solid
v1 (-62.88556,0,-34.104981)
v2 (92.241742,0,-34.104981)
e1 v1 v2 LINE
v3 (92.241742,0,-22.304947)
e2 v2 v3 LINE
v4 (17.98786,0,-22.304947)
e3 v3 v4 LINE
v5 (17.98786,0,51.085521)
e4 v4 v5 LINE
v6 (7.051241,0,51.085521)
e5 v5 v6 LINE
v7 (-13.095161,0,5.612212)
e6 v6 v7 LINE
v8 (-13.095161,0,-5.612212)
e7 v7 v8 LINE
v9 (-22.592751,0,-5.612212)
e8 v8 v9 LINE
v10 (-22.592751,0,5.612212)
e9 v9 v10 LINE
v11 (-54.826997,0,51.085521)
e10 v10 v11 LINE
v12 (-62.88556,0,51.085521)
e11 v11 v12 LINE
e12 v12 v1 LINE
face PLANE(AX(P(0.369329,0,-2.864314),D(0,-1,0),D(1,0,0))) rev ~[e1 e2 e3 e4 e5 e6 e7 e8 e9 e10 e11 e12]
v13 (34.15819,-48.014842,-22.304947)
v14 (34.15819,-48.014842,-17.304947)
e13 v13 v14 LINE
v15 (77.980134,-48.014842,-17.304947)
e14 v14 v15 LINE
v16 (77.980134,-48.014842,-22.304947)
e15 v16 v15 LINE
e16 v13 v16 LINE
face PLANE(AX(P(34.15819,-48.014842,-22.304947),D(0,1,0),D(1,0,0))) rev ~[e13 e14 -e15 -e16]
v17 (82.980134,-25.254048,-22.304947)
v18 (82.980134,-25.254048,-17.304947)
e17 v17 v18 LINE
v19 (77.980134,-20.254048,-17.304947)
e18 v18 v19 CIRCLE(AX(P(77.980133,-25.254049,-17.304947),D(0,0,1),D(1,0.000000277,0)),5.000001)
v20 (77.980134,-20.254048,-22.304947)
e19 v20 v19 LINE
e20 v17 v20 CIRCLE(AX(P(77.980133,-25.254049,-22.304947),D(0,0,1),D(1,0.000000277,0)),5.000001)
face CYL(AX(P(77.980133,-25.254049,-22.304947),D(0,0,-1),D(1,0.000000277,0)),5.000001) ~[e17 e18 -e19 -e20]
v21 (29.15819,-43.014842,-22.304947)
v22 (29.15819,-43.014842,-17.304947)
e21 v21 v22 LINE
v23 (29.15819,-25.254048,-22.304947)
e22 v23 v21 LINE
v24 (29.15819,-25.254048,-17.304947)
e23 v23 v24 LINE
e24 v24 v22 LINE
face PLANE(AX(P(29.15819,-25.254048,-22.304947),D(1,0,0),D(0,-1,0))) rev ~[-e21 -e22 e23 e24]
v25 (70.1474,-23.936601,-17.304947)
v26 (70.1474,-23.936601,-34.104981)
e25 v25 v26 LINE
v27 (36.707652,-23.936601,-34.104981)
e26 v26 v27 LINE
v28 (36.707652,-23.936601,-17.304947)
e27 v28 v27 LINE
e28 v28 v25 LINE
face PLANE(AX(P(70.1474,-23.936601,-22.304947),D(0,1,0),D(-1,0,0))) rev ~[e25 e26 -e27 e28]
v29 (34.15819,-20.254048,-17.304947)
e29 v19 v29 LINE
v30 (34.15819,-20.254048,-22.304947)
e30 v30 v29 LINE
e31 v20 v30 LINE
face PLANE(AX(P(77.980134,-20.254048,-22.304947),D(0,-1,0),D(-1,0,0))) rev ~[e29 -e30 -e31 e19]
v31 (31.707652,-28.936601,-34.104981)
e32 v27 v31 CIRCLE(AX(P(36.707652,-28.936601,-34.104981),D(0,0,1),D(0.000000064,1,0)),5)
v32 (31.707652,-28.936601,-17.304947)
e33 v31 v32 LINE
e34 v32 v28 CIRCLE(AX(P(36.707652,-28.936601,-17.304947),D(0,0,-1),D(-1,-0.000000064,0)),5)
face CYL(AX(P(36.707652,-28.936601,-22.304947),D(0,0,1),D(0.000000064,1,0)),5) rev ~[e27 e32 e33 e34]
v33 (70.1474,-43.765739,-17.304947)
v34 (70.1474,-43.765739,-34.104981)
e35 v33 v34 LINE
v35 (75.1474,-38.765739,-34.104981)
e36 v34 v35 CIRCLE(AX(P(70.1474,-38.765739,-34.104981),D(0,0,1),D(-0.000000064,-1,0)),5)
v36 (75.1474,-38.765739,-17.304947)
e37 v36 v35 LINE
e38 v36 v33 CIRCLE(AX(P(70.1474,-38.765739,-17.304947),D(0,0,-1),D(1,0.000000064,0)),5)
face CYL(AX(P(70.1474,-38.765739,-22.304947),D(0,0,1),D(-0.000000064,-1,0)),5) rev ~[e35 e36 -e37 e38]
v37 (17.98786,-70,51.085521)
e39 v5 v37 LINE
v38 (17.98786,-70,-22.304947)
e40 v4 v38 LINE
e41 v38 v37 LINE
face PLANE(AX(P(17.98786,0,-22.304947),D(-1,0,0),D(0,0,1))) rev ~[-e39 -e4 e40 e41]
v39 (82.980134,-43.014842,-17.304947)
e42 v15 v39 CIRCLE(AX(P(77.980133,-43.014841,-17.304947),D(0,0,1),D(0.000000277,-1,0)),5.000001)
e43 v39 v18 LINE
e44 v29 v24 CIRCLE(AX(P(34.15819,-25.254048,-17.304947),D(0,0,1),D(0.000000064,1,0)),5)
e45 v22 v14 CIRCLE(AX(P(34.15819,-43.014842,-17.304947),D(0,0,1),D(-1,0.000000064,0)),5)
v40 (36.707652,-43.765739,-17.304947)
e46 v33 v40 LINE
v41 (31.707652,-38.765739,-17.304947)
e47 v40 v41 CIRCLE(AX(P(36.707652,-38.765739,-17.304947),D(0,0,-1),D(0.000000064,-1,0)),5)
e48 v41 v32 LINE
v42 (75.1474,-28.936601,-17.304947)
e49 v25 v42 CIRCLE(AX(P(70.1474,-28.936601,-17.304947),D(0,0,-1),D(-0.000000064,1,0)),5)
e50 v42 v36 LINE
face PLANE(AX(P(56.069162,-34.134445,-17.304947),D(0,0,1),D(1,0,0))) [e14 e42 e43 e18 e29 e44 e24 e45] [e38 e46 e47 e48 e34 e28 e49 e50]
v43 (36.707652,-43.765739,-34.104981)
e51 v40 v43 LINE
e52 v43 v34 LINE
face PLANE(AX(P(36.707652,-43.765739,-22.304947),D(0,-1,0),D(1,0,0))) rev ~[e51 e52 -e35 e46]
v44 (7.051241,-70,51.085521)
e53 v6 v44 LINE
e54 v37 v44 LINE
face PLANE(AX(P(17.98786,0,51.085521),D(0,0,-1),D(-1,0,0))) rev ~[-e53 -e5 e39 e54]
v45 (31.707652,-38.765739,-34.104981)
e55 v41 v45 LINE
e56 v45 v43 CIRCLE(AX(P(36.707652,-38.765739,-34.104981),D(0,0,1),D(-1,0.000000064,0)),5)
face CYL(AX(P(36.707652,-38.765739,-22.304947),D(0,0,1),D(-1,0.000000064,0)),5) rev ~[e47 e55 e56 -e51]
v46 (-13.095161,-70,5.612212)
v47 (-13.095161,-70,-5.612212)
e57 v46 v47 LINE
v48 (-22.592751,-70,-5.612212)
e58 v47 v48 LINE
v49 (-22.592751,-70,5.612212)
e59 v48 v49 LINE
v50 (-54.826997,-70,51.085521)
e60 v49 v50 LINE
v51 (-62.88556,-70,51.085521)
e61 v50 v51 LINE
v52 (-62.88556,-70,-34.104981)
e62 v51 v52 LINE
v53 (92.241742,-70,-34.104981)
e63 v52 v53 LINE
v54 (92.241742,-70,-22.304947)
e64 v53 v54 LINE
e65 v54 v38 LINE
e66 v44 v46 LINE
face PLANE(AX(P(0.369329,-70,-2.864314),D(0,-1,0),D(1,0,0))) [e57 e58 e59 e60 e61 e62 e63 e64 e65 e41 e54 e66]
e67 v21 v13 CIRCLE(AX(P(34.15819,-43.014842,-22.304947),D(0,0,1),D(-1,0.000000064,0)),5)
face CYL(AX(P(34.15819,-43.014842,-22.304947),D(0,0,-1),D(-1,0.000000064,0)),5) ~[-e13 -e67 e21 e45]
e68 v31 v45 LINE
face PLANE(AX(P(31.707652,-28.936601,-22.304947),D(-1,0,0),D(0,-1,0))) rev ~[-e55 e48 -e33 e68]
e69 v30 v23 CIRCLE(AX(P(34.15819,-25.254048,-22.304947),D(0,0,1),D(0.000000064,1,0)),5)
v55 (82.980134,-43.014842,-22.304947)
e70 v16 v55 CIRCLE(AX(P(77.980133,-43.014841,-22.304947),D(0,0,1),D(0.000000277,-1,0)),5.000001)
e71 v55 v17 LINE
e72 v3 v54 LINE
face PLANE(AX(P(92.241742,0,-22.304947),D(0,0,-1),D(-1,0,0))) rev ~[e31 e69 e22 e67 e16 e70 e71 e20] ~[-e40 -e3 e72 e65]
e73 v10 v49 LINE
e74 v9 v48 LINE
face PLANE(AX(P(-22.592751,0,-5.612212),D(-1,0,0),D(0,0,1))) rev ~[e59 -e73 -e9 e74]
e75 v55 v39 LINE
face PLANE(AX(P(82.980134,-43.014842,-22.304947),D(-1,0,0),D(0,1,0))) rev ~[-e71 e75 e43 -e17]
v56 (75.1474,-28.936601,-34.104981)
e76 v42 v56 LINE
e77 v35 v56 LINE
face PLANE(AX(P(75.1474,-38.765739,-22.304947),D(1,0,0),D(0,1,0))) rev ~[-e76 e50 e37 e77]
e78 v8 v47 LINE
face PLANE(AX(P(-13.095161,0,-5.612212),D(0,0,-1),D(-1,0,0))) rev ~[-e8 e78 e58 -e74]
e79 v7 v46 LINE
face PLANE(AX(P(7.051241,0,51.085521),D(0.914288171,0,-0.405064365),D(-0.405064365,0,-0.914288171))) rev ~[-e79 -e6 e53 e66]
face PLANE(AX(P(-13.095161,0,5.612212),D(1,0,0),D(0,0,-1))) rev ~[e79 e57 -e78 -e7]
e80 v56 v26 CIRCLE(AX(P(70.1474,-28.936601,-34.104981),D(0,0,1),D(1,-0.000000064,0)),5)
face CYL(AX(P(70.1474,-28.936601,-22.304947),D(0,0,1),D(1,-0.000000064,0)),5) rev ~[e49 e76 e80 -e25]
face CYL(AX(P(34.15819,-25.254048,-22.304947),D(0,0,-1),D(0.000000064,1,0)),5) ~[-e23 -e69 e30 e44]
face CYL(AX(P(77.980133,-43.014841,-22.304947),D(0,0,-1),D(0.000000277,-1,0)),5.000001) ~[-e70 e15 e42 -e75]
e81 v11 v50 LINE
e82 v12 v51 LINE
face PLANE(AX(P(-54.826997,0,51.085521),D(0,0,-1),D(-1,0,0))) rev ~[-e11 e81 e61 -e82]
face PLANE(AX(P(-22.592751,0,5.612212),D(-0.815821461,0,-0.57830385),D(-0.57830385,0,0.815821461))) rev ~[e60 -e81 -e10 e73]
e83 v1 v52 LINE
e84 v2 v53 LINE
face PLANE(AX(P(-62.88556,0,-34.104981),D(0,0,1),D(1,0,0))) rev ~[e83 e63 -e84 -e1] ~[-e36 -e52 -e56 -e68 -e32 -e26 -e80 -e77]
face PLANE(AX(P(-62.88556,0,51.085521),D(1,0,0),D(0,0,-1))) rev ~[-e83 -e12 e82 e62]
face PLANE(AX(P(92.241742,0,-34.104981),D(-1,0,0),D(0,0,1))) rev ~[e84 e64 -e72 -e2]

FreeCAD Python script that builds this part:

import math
import FreeCAD as App
import Part
import Sketcher
from FreeCAD import Vector
Q = App.Units.Quantity

doc = App.newDocument("Part")
params = doc.addObject("Spreadsheet::Sheet", "Params")
for row, (alias, value) in enumerate([
    ("pad1_length", "70 mm"),
    ("sketch2_radius", "5 mm"),
    ("pad2_length", "5 mm"),
    ("sketch3_radius", "5 mm"),
    ("pocket1_length", "25 mm"),
], start=1):
    params.set(f"A{row}", alias)
    params.set(f"B{row}", "=" + value)
    params.setAlias(f"B{row}", alias)

body = doc.addObject("PartDesign::Body", "Body")

sketch1 = body.newObject("Sketcher::SketchObject", "Sketch")
sketch1.AttachmentSupport = (doc.getObject("XZ_Plane"), [""])
sketch1.MapMode = "FlatFace"
sketch1.addGeometry([
    Part.LineSegment(Vector(-55, 51, 0), Vector(-63, 51, 0)),
    Part.LineSegment(Vector(-63, 51, 0), Vector(-63, -34, 0)),
    Part.LineSegment(Vector(-63, -34, 0), Vector(92, -34, 0)),
    Part.LineSegment(Vector(92, -34, 0), Vector(92, -22, 0)),
    Part.LineSegment(Vector(92, -22, 0), Vector(18, -22, 0)),
    Part.LineSegment(Vector(18, -22, 0), Vector(18, 51, 0)),
    Part.LineSegment(Vector(18, 51, 0), Vector(7, 51, 0)),
    Part.LineSegment(Vector(7, 51, 0), Vector(-13, 6, 0)),
    Part.LineSegment(Vector(-13, 6, 0), Vector(-13, -6, 0)),
    Part.LineSegment(Vector(-13, -6, 0), Vector(-23, -6, 0)),
    Part.LineSegment(Vector(-23, -6, 0), Vector(-23, 6, 0)),
    Part.LineSegment(Vector(-23, 6, 0), Vector(-55, 51, 0)),
], False)
sketch1.addConstraint([
    Sketcher.Constraint("Coincident", 0, 2, 1, 1),
    Sketcher.Constraint("Coincident", 1, 2, 2, 1),
    Sketcher.Constraint("Coincident", 2, 2, 3, 1),
    Sketcher.Constraint("Coincident", 3, 2, 4, 1),
    Sketcher.Constraint("Coincident", 4, 2, 5, 1),
    Sketcher.Constraint("Coincident", 5, 2, 6, 1),
    Sketcher.Constraint("Coincident", 6, 2, 7, 1),
    Sketcher.Constraint("Coincident", 7, 2, 8, 1),
    Sketcher.Constraint("Coincident", 8, 2, 9, 1),
    Sketcher.Constraint("Coincident", 9, 2, 10, 1),
    Sketcher.Constraint("Coincident", 10, 2, 11, 1),
    Sketcher.Constraint("Coincident", 11, 2, 0, 1),
    Sketcher.Constraint("Horizontal", 0),
    Sketcher.Constraint("Vertical", 1),
    Sketcher.Constraint("Horizontal", 2),
    Sketcher.Constraint("Vertical", 3),
    Sketcher.Constraint("Horizontal", 4),
    Sketcher.Constraint("Vertical", 5),
    Sketcher.Constraint("Horizontal", 6),
    Sketcher.Constraint("Vertical", 8),
    Sketcher.Constraint("Horizontal", 9),
    Sketcher.Constraint("Vertical", 10),
    Sketcher.Constraint("Horizontal", 0, 2, 5, 2),
    Sketcher.Constraint("Horizontal", 7, 2, 10, 2),
    Sketcher.Constraint("DistanceX", 2, 1, 2, 2, Q("155.127302 mm")),
    Sketcher.Constraint("Distance", 7, Q("49.736298 mm")),
    Sketcher.Constraint("DistanceX", 6, 2, 6, 1, Q("10.936619 mm")),
    Sketcher.Constraint("DistanceX", 9, 2, 9, 1, Q("9.49759 mm")),
    Sketcher.Constraint("DistanceY", 5, 1, 5, 2, Q("73.390468 mm")),
    Sketcher.Constraint("DistanceX", 0, 2, 6, 2, Q("69.936801 mm")),
    Sketcher.Constraint("DistanceX", 7, 2, 6, 2, Q("20.146402 mm")),
    Sketcher.Constraint("Distance", 11, Q("55.73929 mm")),
    Sketcher.Constraint("DistanceY", 1, 2, 1, 1, Q("85.190502 mm")),
    Sketcher.Constraint("DistanceY", 8, 2, 8, 1, Q("11.224424 mm")),
    Sketcher.Constraint("DistanceX", 0, 2, -1, 1, Q("62.88556 mm")),
    Sketcher.Constraint("DistanceY", -1, 1, 0, 2, Q("51.085521 mm")),
])
pad1 = body.newObject("PartDesign::Pad", "Pad")
pad1.Profile = sketch1
pad1.setExpression("Length", "Params.pad1_length")

sketch2 = body.newObject("Sketcher::SketchObject", "Sketch001")
sketch2.AttachmentSupport = (doc.getObject("XY_Plane"), [""])
sketch2.MapMode = "FlatFace"
sketch2.AttachmentOffset = App.Placement(Vector(0, 0, -22.304947), App.Rotation())
sketch2.addGeometry([
    Part.LineSegment(Vector(78, -20.3, 0), Vector(34.2, -20.3, 0)),
    Part.ArcOfCircle(Part.Circle(Vector(34.2, -25.3, 0), Vector(0, 0, 1), 5), math.radians(90), math.radians(180)),
    Part.LineSegment(Vector(29.2, -25.3, 0), Vector(29.2, -43, 0)),
    Part.ArcOfCircle(Part.Circle(Vector(34.2, -43, 0), Vector(0, 0, 1), 5), math.radians(180), math.radians(270)),
    Part.LineSegment(Vector(34.2, -48, 0), Vector(78, -48, 0)),
    Part.ArcOfCircle(Part.Circle(Vector(78, -43, 0), Vector(0, 0, 1), 5), math.radians(-90), math.radians(0)),
    Part.LineSegment(Vector(83, -43, 0), Vector(83, -25.3, 0)),
    Part.ArcOfCircle(Part.Circle(Vector(78, -25.3, 0), Vector(0, 0, 1), 5), math.radians(0), math.radians(90)),
    Part.LineSegment(Vector(31.7, -38.8, 0), Vector(31.7, -28.9, 0)),
    Part.ArcOfCircle(Part.Circle(Vector(36.7, -28.9, 0), Vector(0, 0, 1), 5), math.radians(90), math.radians(180)),
    Part.LineSegment(Vector(36.7, -23.9, 0), Vector(70.1, -23.9, 0)),
    Part.ArcOfCircle(Part.Circle(Vector(70.1, -28.9, 0), Vector(0, 0, 1), 5), math.radians(0), math.radians(90)),
    Part.LineSegment(Vector(75.1, -28.9, 0), Vector(75.1, -38.8, 0)),
    Part.ArcOfCircle(Part.Circle(Vector(70.1, -38.8, 0), Vector(0, 0, 1), 5), math.radians(-90), math.radians(0)),
    Part.LineSegment(Vector(70.1, -43.8, 0), Vector(36.7, -43.8, 0)),
    Part.ArcOfCircle(Part.Circle(Vector(36.7, -38.8, 0), Vector(0, 0, 1), 5), math.radians(180), math.radians(270)),
], False)
sketch2.addConstraint([
    Sketcher.Constraint("Tangent", 0, 2, 1, 1),
    Sketcher.Constraint("Tangent", 1, 2, 2, 1),
    Sketcher.Constraint("Tangent", 2, 2, 3, 1),
    Sketcher.Constraint("Tangent", 3, 2, 4, 1),
    Sketcher.Constraint("Tangent", 4, 2, 5, 1),
    Sketcher.Constraint("Tangent", 5, 2, 6, 1),
    Sketcher.Constraint("Tangent", 6, 2, 7, 1),
    Sketcher.Constraint("Tangent", 7, 2, 0, 1),
    Sketcher.Constraint("Tangent", 8, 2, 9, 2),
    Sketcher.Constraint("Tangent", 9, 1, 10, 1),
    Sketcher.Constraint("Tangent", 10, 2, 11, 2),
    Sketcher.Constraint("Tangent", 11, 1, 12, 1),
    Sketcher.Constraint("Tangent", 12, 2, 13, 2),
    Sketcher.Constraint("Tangent", 13, 1, 14, 1),
    Sketcher.Constraint("Tangent", 14, 2, 15, 2),
    Sketcher.Constraint("Tangent", 15, 1, 8, 1),
    Sketcher.Constraint("Horizontal", 0),
    Sketcher.Constraint("Vertical", 2),
    Sketcher.Constraint("Horizontal", 4),
    Sketcher.Constraint("Vertical", 6),
    Sketcher.Constraint("Vertical", 8),
    Sketcher.Constraint("Horizontal", 10),
    Sketcher.Constraint("Vertical", 12),
    Sketcher.Constraint("Horizontal", 14),
    Sketcher.Constraint("Equal", 1, 3),
    Sketcher.Constraint("Equal", 3, 5),
    Sketcher.Constraint("Equal", 5, 7),
    Sketcher.Constraint("Equal", 7, 9),
    Sketcher.Constraint("Equal", 9, 11),
    Sketcher.Constraint("Equal", 11, 13),
    Sketcher.Constraint("Equal", 13, 15),
    Sketcher.Constraint("Radius", 1, Q("5 mm")),
    Sketcher.Constraint("DistanceX", 10, 1, 10, 2, Q("33.439748 mm")),
    Sketcher.Constraint("DistanceY", 8, 1, 8, 2, Q("9.829138 mm")),
    Sketcher.Constraint("DistanceY", 9, 3, -1, 1, Q("28.936601 mm")),
    Sketcher.Constraint("DistanceX", -1, 1, 11, 3, Q("70.1474 mm")),
    Sketcher.Constraint("DistanceY", 5, 3, 13, 3, Q("4.249101 mm")),
    Sketcher.Constraint("DistanceX", 0, 2, 0, 1, Q("43.821944 mm")),
    Sketcher.Constraint("DistanceY", 2, 2, 2, 1, Q("17.760794 mm")),
    Sketcher.Constraint("DistanceX", -1, 1, 1, 3, Q("34.15819 mm")),
])
sketch2.setExpression("Constraints[31]", "Params.sketch2_radius")
pad2 = body.newObject("PartDesign::Pad", "Pad001")
pad2.Profile = sketch2
pad2.setExpression("Length", "Params.pad2_length")

sketch3 = body.newObject("Sketcher::SketchObject", "Sketch002")
sketch3.AttachmentSupport = (doc.getObject("XY_Plane"), [""])
sketch3.MapMode = "FlatFace"
sketch3.AttachmentOffset = App.Placement(Vector(0, 0, -22.304947), App.Rotation())
sketch3.addGeometry([
    Part.LineSegment(Vector(31.7, -28.9, 0), Vector(31.7, -38.8, 0)),
    Part.ArcOfCircle(Part.Circle(Vector(36.7, -38.8, 0), Vector(0, 0, 1), 5), math.radians(180), math.radians(270)),
    Part.LineSegment(Vector(36.7, -43.8, 0), Vector(70.1, -43.8, 0)),
    Part.ArcOfCircle(Part.Circle(Vector(70.1, -38.8, 0), Vector(0, 0, 1), 5), math.radians(-90), math.radians(0)),
    Part.LineSegment(Vector(75.1, -38.8, 0), Vector(75.1, -28.9, 0)),
    Part.ArcOfCircle(Part.Circle(Vector(70.1, -28.9, 0), Vector(0, 0, 1), 5), math.radians(0), math.radians(90)),
    Part.LineSegment(Vector(70.1, -23.9, 0), Vector(36.7, -23.9, 0)),
    Part.ArcOfCircle(Part.Circle(Vector(36.7, -28.9, 0), Vector(0, 0, 1), 5), math.radians(90), math.radians(180)),
], False)
sketch3.addConstraint([
    Sketcher.Constraint("Tangent", 0, 2, 1, 1),
    Sketcher.Constraint("Tangent", 1, 2, 2, 1),
    Sketcher.Constraint("Tangent", 2, 2, 3, 1),
    Sketcher.Constraint("Tangent", 3, 2, 4, 1),
    Sketcher.Constraint("Tangent", 4, 2, 5, 1),
    Sketcher.Constraint("Tangent", 5, 2, 6, 1),
    Sketcher.Constraint("Tangent", 6, 2, 7, 1),
    Sketcher.Constraint("Tangent", 7, 2, 0, 1),
    Sketcher.Constraint("Vertical", 0),
    Sketcher.Constraint("Horizontal", 2),
    Sketcher.Constraint("Vertical", 4),
    Sketcher.Constraint("Horizontal", 6),
    Sketcher.Constraint("Equal", 1, 3),
    Sketcher.Constraint("Equal", 3, 5),
    Sketcher.Constraint("Equal", 5, 7),
    Sketcher.Constraint("Radius", 1, Q("5 mm")),
    Sketcher.Constraint("DistanceX", 2, 1, 2, 2, Q("33.439748 mm")),
    Sketcher.Constraint("DistanceY", 0, 2, 0, 1, Q("9.829138 mm")),
    Sketcher.Constraint("DistanceX", -1, 1, 3, 3, Q("70.1474 mm")),
    Sketcher.Constraint("DistanceY", 5, 3, -1, 1, Q("28.936601 mm")),
])
sketch3.setExpression("Constraints[15]", "Params.sketch3_radius")
pocket1 = body.newObject("PartDesign::Pocket", "Pocket")
pocket1.Profile = sketch3
pocket1.setExpression("Length", "Params.pocket1_length")

doc.recompute()
